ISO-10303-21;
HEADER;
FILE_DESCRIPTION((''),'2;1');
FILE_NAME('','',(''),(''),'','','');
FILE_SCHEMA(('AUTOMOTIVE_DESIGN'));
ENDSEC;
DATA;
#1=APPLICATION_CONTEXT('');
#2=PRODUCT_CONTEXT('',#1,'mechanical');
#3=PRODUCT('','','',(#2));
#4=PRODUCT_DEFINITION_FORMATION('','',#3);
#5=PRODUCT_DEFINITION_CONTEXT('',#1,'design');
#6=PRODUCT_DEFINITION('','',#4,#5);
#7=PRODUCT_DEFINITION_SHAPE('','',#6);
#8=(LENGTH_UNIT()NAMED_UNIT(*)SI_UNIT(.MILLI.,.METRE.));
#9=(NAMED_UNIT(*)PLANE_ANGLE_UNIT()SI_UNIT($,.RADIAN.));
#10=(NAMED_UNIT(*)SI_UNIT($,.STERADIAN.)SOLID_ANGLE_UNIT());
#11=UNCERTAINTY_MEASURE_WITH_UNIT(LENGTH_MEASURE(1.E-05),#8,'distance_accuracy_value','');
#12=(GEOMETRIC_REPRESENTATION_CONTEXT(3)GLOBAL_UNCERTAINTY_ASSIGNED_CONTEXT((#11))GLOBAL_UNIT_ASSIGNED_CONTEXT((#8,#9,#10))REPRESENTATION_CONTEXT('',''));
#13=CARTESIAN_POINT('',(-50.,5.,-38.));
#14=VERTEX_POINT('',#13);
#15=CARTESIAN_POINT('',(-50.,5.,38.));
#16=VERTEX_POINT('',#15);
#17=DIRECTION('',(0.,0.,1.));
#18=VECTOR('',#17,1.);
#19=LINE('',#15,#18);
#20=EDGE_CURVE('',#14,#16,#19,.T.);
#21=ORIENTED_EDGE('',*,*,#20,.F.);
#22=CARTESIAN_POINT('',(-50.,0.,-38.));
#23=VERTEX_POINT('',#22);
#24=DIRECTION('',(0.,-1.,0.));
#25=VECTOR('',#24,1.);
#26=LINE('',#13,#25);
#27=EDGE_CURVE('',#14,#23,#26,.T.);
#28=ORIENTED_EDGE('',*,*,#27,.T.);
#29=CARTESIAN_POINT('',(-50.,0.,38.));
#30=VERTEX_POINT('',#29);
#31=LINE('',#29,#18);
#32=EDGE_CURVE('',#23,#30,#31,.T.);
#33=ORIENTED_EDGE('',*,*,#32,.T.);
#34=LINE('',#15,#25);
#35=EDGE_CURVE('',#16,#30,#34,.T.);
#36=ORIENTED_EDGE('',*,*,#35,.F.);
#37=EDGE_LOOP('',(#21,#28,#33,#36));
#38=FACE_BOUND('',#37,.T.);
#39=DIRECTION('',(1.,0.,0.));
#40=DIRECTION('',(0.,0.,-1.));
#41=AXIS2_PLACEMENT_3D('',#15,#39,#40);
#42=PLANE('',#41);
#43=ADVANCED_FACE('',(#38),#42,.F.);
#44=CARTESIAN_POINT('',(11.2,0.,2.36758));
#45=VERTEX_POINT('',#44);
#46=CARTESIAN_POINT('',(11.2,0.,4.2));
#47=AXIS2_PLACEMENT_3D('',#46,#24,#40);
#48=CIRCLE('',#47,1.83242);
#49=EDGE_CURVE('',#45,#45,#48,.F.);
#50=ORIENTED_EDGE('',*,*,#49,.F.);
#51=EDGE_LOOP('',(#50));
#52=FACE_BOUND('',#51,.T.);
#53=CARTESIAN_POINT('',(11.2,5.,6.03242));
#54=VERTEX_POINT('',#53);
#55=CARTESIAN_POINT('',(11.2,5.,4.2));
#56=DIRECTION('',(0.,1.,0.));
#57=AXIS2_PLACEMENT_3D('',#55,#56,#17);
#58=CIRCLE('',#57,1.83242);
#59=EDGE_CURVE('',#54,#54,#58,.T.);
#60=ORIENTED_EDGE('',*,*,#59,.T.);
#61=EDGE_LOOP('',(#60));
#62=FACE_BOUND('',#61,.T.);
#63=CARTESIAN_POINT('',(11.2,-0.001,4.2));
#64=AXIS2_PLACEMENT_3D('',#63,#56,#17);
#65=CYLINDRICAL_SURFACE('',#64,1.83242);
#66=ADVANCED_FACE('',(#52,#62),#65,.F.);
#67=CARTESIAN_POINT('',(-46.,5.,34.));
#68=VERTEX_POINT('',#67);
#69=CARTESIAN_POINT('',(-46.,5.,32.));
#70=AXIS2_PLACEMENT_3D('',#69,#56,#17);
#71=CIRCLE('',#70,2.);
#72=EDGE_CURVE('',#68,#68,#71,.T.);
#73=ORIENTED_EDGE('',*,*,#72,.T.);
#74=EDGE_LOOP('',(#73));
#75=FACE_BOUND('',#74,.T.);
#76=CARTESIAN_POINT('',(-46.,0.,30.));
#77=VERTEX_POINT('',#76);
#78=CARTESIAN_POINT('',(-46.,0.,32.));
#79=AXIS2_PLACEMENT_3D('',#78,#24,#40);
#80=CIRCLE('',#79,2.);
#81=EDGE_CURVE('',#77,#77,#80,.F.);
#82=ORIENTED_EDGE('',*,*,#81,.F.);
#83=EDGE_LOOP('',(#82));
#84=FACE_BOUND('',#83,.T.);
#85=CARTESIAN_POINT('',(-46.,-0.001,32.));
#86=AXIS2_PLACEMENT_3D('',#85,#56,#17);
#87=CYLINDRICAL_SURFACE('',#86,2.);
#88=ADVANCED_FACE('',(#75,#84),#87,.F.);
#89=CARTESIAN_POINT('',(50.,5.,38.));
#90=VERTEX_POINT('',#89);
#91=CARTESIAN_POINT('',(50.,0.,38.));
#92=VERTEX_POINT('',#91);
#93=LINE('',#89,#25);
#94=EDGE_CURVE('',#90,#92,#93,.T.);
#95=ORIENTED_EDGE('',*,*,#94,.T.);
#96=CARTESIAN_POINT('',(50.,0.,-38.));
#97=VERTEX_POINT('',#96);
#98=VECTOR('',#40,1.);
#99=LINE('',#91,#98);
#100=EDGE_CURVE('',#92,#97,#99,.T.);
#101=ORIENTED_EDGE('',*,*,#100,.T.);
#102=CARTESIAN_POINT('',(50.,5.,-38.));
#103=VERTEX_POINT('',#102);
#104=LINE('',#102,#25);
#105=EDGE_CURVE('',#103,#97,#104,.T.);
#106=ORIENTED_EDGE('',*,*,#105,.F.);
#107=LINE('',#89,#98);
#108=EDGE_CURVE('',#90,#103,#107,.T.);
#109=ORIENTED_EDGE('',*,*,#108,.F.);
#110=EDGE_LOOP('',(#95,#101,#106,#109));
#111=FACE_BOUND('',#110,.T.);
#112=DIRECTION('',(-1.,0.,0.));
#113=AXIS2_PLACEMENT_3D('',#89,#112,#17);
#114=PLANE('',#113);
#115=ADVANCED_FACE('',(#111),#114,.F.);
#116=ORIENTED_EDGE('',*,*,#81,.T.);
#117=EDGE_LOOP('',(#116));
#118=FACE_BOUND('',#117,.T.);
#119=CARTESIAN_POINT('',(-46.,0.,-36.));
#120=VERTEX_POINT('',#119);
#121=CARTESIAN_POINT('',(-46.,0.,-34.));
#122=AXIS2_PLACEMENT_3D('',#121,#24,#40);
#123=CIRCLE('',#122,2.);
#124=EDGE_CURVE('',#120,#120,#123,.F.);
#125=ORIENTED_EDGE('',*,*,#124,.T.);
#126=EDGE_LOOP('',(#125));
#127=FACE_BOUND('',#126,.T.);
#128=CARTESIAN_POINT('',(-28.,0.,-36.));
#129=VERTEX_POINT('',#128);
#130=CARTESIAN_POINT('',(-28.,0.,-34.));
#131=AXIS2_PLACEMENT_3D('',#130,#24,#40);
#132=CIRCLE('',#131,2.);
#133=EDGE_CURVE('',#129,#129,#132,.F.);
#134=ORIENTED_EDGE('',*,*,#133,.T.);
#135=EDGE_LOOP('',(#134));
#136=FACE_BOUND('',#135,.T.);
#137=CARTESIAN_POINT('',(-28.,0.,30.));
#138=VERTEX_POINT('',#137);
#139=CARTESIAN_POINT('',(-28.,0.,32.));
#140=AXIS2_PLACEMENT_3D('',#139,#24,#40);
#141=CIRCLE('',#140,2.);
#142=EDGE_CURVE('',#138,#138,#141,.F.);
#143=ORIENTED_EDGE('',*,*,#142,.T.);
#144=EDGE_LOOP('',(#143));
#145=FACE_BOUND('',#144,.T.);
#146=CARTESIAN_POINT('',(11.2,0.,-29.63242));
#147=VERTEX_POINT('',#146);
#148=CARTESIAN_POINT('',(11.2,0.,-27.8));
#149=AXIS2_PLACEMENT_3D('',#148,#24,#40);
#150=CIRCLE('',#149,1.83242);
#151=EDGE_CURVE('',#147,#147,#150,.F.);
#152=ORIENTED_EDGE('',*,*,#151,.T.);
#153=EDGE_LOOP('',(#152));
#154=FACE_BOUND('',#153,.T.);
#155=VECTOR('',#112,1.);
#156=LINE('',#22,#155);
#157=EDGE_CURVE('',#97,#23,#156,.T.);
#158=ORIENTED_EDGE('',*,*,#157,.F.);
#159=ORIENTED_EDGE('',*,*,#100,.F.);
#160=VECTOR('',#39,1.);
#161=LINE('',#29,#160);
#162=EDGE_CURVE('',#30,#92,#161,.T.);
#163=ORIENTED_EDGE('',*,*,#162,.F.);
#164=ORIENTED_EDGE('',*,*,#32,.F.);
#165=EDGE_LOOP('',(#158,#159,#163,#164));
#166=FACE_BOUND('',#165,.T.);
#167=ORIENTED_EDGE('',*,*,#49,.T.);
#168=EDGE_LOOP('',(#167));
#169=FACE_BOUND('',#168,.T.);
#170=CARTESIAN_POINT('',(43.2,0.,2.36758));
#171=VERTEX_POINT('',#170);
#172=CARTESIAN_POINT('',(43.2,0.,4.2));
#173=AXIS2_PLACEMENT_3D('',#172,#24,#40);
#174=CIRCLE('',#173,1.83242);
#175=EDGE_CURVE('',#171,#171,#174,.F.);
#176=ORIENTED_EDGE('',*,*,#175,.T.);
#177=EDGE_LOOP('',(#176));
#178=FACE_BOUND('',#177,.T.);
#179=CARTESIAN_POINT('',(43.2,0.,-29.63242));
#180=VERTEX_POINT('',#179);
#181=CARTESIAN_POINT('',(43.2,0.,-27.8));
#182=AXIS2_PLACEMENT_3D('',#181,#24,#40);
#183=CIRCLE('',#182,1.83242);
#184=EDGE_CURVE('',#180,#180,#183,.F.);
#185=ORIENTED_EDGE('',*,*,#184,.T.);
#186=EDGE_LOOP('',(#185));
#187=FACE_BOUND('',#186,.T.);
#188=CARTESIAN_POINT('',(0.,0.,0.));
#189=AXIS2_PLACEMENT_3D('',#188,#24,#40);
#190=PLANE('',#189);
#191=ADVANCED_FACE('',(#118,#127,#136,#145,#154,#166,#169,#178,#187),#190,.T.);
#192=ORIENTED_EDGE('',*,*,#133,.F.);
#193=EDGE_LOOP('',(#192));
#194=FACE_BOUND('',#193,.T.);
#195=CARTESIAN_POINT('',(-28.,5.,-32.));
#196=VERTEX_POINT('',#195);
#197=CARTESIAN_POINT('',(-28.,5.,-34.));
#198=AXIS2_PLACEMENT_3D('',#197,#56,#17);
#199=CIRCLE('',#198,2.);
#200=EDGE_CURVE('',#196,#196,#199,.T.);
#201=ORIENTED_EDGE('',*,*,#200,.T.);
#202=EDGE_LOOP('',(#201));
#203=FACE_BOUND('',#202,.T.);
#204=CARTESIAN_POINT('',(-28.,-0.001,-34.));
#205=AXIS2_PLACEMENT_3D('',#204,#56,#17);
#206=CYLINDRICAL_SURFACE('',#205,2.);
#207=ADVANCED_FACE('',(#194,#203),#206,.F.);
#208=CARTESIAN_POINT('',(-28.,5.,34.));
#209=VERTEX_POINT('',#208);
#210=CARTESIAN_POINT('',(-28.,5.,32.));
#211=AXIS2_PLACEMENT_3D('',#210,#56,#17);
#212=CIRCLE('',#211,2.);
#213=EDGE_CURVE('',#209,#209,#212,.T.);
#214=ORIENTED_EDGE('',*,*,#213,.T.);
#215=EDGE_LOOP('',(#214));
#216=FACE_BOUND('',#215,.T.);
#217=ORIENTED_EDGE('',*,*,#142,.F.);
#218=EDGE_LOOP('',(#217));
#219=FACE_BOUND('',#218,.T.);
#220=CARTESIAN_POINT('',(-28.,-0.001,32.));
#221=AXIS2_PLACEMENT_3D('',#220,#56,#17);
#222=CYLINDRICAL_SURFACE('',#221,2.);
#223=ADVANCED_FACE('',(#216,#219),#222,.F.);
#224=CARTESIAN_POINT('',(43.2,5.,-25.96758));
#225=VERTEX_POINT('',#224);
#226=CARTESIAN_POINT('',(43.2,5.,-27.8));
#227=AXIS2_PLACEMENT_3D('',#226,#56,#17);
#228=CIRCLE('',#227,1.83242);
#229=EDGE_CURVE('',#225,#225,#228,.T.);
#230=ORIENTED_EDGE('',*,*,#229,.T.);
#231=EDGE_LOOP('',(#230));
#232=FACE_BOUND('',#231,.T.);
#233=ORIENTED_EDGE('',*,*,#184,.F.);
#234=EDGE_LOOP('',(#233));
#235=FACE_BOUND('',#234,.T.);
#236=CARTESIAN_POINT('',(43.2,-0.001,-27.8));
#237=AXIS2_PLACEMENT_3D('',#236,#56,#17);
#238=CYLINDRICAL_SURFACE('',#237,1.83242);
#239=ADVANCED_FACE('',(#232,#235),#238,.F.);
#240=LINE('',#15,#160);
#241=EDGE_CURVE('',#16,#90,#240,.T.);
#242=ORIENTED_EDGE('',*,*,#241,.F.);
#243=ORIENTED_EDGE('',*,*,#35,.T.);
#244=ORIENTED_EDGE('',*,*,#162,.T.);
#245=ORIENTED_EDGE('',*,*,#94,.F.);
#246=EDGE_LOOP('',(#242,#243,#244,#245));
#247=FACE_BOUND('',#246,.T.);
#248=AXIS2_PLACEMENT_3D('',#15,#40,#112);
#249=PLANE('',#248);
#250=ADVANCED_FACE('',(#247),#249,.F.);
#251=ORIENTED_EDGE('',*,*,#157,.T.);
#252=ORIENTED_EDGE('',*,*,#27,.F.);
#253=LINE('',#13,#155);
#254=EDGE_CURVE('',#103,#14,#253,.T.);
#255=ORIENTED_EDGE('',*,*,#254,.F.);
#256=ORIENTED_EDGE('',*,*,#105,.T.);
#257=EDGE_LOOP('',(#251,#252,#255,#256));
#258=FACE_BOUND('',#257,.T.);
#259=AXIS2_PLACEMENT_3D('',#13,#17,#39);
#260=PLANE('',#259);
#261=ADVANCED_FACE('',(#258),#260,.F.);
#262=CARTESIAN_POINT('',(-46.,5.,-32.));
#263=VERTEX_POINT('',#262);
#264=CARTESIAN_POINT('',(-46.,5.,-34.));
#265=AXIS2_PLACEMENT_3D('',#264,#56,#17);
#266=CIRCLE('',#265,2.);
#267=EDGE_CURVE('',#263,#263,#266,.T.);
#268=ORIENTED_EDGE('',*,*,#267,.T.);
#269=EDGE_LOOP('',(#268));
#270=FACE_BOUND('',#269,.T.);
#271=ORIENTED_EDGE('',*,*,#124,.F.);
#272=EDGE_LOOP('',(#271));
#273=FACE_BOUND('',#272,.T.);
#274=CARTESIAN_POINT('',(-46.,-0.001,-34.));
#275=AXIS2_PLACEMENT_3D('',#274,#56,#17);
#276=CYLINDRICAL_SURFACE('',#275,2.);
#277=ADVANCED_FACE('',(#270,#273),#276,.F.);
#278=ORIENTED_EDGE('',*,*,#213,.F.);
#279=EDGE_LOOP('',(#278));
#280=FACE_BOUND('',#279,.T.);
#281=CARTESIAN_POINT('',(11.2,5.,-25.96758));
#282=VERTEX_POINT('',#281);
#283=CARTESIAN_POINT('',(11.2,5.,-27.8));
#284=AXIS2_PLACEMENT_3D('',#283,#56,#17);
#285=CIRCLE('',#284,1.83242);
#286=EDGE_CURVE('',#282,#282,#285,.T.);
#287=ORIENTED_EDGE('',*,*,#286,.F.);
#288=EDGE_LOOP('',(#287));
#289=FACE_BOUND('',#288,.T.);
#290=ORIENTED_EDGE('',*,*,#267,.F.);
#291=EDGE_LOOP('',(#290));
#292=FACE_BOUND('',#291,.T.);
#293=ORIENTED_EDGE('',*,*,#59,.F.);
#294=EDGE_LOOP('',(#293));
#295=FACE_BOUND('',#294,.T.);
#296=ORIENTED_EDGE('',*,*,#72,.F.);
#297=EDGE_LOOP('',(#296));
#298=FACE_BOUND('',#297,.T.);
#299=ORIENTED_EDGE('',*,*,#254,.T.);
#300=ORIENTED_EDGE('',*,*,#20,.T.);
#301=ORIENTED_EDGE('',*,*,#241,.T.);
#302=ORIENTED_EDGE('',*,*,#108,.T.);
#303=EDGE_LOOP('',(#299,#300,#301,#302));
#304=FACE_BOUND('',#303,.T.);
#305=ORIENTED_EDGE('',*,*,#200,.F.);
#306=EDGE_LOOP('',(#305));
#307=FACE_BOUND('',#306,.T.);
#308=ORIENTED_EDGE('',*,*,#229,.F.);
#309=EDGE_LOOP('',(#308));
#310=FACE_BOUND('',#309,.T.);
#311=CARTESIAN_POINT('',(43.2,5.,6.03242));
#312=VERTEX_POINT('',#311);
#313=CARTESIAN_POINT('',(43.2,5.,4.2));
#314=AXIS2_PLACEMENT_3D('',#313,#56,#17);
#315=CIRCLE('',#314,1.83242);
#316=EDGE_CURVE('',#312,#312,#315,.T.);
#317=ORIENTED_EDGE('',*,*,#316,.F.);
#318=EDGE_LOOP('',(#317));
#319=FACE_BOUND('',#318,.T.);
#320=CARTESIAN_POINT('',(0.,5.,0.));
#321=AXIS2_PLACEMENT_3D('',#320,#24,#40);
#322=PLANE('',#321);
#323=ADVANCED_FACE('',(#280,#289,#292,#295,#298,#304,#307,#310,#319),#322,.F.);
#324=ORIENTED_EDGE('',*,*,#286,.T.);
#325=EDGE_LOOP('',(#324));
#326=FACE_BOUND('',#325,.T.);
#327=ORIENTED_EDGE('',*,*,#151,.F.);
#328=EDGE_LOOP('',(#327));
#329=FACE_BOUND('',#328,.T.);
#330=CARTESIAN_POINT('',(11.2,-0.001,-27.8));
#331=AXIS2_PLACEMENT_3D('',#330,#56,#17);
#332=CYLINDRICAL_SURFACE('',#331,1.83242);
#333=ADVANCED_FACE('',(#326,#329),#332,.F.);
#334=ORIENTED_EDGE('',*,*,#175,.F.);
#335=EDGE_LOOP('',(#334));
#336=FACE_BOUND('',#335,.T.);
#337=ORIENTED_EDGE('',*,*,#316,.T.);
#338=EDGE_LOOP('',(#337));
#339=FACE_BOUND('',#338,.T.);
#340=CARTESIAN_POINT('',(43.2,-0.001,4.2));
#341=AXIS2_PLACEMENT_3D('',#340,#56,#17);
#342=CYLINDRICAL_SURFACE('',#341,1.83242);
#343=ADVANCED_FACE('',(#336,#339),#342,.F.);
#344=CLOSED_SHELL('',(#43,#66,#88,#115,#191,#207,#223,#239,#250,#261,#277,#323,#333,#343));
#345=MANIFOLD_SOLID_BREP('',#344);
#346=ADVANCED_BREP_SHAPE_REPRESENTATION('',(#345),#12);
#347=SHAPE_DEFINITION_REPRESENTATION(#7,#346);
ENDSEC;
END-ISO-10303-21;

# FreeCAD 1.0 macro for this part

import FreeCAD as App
import Part
import Sketcher
Q = App.Units.Quantity


def add_polygon(sketch, points):
    """Adds a closed chain of lines whose ends are joined by coincident constraints."""
    first, n = sketch.GeometryCount, len(points)
    for a, b in zip(points, points[1:] + points[:1]):
        sketch.addGeometry(Part.LineSegment(App.Vector(*a, 0), App.Vector(*b, 0)), False)
    for i in range(n):
        sketch.addConstraint(Sketcher.Constraint("Coincident", first + i, 2, first + (i + 1) % n, 1))

doc = App.newDocument("Part")
body = doc.addObject("PartDesign::Body", "Body")

# Sketch on XZ plane
sketch1 = doc.addObject("Sketcher::SketchObject", "Sketch")
body.addObject(sketch1)
sketch1.AttachmentSupport = (doc.XZ_Plane, [""])
sketch1.MapMode = "FlatFace"
add_polygon(sketch1, [(-50, -38), (-50, 38), (50, 38), (50, -38)])  # lines 0-3
sketch1.addConstraint([
    Sketcher.Constraint("Vertical", 0),
    Sketcher.Constraint("Horizontal", 1),
    Sketcher.Constraint("Vertical", 2),
    Sketcher.Constraint("Horizontal", 3),
    Sketcher.Constraint("Symmetric", 0, 2, 2, 2, -1, 1),
    Sketcher.Constraint("DistanceX", 1, 1, 1, 2, Q("100 mm")),
    Sketcher.Constraint("DistanceY", 0, 1, 0, 2, Q("76 mm")),
])
pad1 = doc.addObject("PartDesign::Pad", "Pad")
body.addObject(pad1)
pad1.Profile = sketch1
pad1.Length = 5
pad1.Reversed = True

# Sketch on XZ plane
sketch2 = doc.addObject("Sketcher::SketchObject", "Sketch001")
body.addObject(sketch2)
sketch2.AttachmentSupport = (doc.XZ_Plane, [""])
sketch2.MapMode = "FlatFace"
sketch2.AttachmentOffset = App.Placement(App.Vector(0, 0, -5), App.Rotation())
sketch2.addGeometry(Part.Circle(App.Vector(-46, -34, 0), App.Vector(0, 0, 1), 2), False)
sketch2.addConstraint([
    Sketcher.Constraint("Diameter", 0, Q("4 mm")),
    Sketcher.Constraint("DistanceX", 0, 3, -1, 1, Q("46 mm")),
    Sketcher.Constraint("DistanceY", 0, 3, -1, 1, Q("34 mm")),
])
pocket1 = doc.addObject("PartDesign::Pocket", "Pocket")
body.addObject(pocket1)
pocket1.Profile = sketch2
pocket1.Type = "UpToFirst"
pocket1.Reversed = True

# Sketch on XZ plane
sketch3 = doc.addObject("Sketcher::SketchObject", "Sketch002")
body.addObject(sketch3)
sketch3.AttachmentSupport = (doc.XZ_Plane, [""])
sketch3.MapMode = "FlatFace"
sketch3.AttachmentOffset = App.Placement(App.Vector(0, 0, -5), App.Rotation())
sketch3.addGeometry(Part.Circle(App.Vector(-28, -34, 0), App.Vector(0, 0, 1), 2), False)
sketch3.addConstraint([
    Sketcher.Constraint("Diameter", 0, Q("4 mm")),
    Sketcher.Constraint("DistanceX", 0, 3, -1, 1, Q("28 mm")),
    Sketcher.Constraint("DistanceY", 0, 3, -1, 1, Q("34 mm")),
])
pocket2 = doc.addObject("PartDesign::Pocket", "Pocket001")
body.addObject(pocket2)
pocket2.Profile = sketch3
pocket2.Type = "UpToFirst"
pocket2.Reversed = True

# Sketch on XZ plane
sketch4 = doc.addObject("Sketcher::SketchObject", "Sketch003")
body.addObject(sketch4)
sketch4.AttachmentSupport = (doc.XZ_Plane, [""])
sketch4.MapMode = "FlatFace"
sketch4.AttachmentOffset = App.Placement(App.Vector(0, 0, -5), App.Rotation())
sketch4.addGeometry(Part.Circle(App.Vector(-46, 32, 0), App.Vector(0, 0, 1), 2), False)
sketch4.addConstraint([
    Sketcher.Constraint("Diameter", 0, Q("4 mm")),
    Sketcher.Constraint("DistanceX", 0, 3, -1, 1, Q("46 mm")),
    Sketcher.Constraint("DistanceY", -1, 1, 0, 3, Q("32 mm")),
])
pocket3 = doc.addObject("PartDesign::Pocket", "Pocket002")
body.addObject(pocket3)
pocket3.Profile = sketch4
pocket3.Type = "UpToFirst"
pocket3.Reversed = True

# Sketch on XZ plane
sketch5 = doc.addObject("Sketcher::SketchObject", "Sketch004")
body.addObject(sketch5)
sketch5.AttachmentSupport = (doc.XZ_Plane, [""])
sketch5.MapMode = "FlatFace"
sketch5.AttachmentOffset = App.Placement(App.Vector(0, 0, -5), App.Rotation())
sketch5.addGeometry(Part.Circle(App.Vector(-28, 32, 0), App.Vector(0, 0, 1), 2), False)
sketch5.addConstraint([
    Sketcher.Constraint("Diameter", 0, Q("4 mm")),
    Sketcher.Constraint("DistanceX", 0, 3, -1, 1, Q("28 mm")),
    Sketcher.Constraint("DistanceY", -1, 1, 0, 3, Q("32 mm")),
])
pocket4 = doc.addObject("PartDesign::Pocket", "Pocket003")
body.addObject(pocket4)
pocket4.Profile = sketch5
pocket4.Type = "UpToFirst"
pocket4.Reversed = True

# Sketch on XZ plane
sketch6 = doc.addObject("Sketcher::SketchObject", "Sketch005")
body.addObject(sketch6)
sketch6.AttachmentSupport = (doc.XZ_Plane, [""])
sketch6.MapMode = "FlatFace"
sketch6.AttachmentOffset = App.Placement(App.Vector(0, 0, -5), App.Rotation())
sketch6.addGeometry(Part.Circle(App.Vector(11.2, -27.8, 0), App.Vector(0, 0, 1), 1.83242), False)
sketch6.addConstraint([
    Sketcher.Constraint("DistanceX", -1, 1, 0, 3, Q("11.2 mm")),
    Sketcher.Constraint("DistanceY", 0, 3, -1, 1, Q("27.8 mm")),
    Sketcher.Constraint("Diameter", 0, Q("3.66484 mm")),
])
pocket5 = doc.addObject("PartDesign::Pocket", "Pocket004")
body.addObject(pocket5)
pocket5.Profile = sketch6
pocket5.Type = "UpToFirst"
pocket5.Reversed = True

# Sketch on XZ plane
sketch7 = doc.addObject("Sketcher::SketchObject", "Sketch006")
body.addObject(sketch7)
sketch7.AttachmentSupport = (doc.XZ_Plane, [""])
sketch7.MapMode = "FlatFace"
sketch7.AttachmentOffset = App.Placement(App.Vector(0, 0, -5), App.Rotation())
sketch7.addGeometry(Part.Circle(App.Vector(43.2, -27.8, 0), App.Vector(0, 0, 1), 1.83242), False)
sketch7.addConstraint([
    Sketcher.Constraint("DistanceX", -1, 1, 0, 3, Q("43.2 mm")),
    Sketcher.Constraint("DistanceY", 0, 3, -1, 1, Q("27.8 mm")),
    Sketcher.Constraint("Diameter", 0, Q("3.66484 mm")),
])
pocket6 = doc.addObject("PartDesign::Pocket", "Pocket005")
body.addObject(pocket6)
pocket6.Profile = sketch7
pocket6.Type = "UpToFirst"
pocket6.Reversed = True

# Sketch on XZ plane
sketch8 = doc.addObject("Sketcher::SketchObject", "Sketch007")
body.addObject(sketch8)
sketch8.AttachmentSupport = (doc.XZ_Plane, [""])
sketch8.MapMode = "FlatFace"
sketch8.AttachmentOffset = App.Placement(App.Vector(0, 0, -5), App.Rotation())
sketch8.addGeometry(Part.Circle(App.Vector(11.2, 4.2, 0), App.Vector(0, 0, 1), 1.83242), False)
sketch8.addConstraint([
    Sketcher.Constraint("DistanceX", -1, 1, 0, 3, Q("11.2 mm")),
    Sketcher.Constraint("DistanceY", -1, 1, 0, 3, Q("4.2 mm")),
    Sketcher.Constraint("Diameter", 0, Q("3.66484 mm")),
])
pocket7 = doc.addObject("PartDesign::Pocket", "Pocket006")
body.addObject(pocket7)
pocket7.Profile = sketch8
pocket7.Type = "UpToFirst"
pocket7.Reversed = True

# Sketch on XZ plane
sketch9 = doc.addObject("Sketcher::SketchObject", "Sketch008")
body.addObject(sketch9)
sketch9.AttachmentSupport = (doc.XZ_Plane, [""])
sketch9.MapMode = "FlatFace"
sketch9.AttachmentOffset = App.Placement(App.Vector(0, 0, -5), App.Rotation())
sketch9.addGeometry(Part.Circle(App.Vector(43.2, 4.2, 0), App.Vector(0, 0, 1), 1.83242), False)
sketch9.addConstraint([
    Sketcher.Constraint("DistanceX", -1, 1, 0, 3, Q("43.2 mm")),
    Sketcher.Constraint("DistanceY", -1, 1, 0, 3, Q("4.2 mm")),
    Sketcher.Constraint("Diameter", 0, Q("3.66484 mm")),
])
pocket8 = doc.addObject("PartDesign::Pocket", "Pocket007")
body.addObject(pocket8)
pocket8.Profile = sketch9
pocket8.Type = "UpToFirst"
pocket8.Reversed = True

doc.recompute()
